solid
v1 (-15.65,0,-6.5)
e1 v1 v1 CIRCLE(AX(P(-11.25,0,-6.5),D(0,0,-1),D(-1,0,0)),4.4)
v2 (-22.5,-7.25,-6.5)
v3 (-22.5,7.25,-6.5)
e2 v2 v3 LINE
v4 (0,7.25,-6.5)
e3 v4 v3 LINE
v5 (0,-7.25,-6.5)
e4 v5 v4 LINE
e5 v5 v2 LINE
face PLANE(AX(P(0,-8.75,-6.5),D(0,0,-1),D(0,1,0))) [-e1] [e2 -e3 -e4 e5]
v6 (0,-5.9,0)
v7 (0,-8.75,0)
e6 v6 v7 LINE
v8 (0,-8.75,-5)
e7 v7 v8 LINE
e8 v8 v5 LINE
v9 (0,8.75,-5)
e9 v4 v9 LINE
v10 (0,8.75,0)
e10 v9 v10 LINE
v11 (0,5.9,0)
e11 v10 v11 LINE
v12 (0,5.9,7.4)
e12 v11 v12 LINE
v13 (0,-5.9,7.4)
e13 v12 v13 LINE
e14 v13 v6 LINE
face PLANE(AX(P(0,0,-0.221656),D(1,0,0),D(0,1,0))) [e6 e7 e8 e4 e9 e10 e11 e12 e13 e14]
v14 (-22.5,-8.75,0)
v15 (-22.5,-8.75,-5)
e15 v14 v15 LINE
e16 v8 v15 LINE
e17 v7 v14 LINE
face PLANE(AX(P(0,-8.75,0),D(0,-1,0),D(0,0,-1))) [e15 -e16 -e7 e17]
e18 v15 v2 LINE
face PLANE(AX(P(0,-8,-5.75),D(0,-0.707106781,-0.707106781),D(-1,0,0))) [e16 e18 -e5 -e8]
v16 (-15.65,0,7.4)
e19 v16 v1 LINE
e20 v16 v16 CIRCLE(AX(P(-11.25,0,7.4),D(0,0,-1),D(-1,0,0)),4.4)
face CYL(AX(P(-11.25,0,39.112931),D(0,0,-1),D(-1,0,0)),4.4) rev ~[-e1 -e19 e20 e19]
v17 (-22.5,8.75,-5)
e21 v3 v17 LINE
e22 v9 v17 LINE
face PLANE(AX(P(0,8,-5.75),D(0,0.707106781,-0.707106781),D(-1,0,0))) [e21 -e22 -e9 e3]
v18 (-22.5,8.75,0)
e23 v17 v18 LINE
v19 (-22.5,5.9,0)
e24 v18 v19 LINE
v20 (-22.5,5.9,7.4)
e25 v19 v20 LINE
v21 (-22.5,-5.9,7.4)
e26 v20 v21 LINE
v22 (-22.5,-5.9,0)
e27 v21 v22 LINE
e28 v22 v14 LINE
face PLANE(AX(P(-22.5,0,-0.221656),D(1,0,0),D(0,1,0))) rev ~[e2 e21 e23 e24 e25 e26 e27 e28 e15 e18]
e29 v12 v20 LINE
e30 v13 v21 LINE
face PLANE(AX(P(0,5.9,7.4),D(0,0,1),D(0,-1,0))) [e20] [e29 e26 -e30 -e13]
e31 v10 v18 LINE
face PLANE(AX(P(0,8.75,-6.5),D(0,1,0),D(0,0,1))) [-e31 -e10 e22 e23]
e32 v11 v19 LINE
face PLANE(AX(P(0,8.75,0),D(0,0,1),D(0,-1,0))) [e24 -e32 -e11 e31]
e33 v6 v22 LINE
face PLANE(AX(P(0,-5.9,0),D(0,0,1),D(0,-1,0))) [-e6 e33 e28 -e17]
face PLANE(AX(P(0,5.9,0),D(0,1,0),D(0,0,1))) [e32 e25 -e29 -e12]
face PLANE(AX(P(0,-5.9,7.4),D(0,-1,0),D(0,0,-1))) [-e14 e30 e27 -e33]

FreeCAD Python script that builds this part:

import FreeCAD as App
import Part
import Sketcher
from FreeCAD import Vector


def edges_at(feature, points):
    """Names of the edges that pass closest to the given points."""
    edges = feature.Shape.Edges
    near = lambda p: min(range(len(edges)), key=lambda i: edges[i].distToShape(Part.Vertex(*p))[0])
    return sorted({f"Edge{near(p) + 1}" for p in points})


def add_polygon(sketch, points):
    """Adds a closed chain of lines whose ends are joined by coincident constraints."""
    first, n = sketch.GeometryCount, len(points)
    for a, b in zip(points, points[1:] + points[:1]):
        sketch.addGeometry(Part.LineSegment(App.Vector(*a, 0), App.Vector(*b, 0)), False)
    for i in range(n):
        sketch.addConstraint(Sketcher.Constraint("Coincident", first + i, 2, first + (i + 1) % n, 1))

doc = App.newDocument("Part")
params = doc.addObject("Spreadsheet::Sheet", "Params")
for row, (alias, value) in enumerate([
    ("sketch1_width", "11.8 mm"),
    ("sketch1_width2", "17.5 mm"),
    ("sketch1_height", "7.4 mm"),
    ("sketch1_height2", "6.5 mm"),
    ("pad1_length", "22.5 mm"),
    ("sketch2_diameter", "8.8 mm"),
    ("hole_diameter", "8.8 mm"),
    ("chamfer_size", "1.5 mm"),
], start=1):
    params.set(f"A{row}", alias)
    params.set(f"B{row}", "=" + value)
    params.setAlias(f"B{row}", alias)

body = doc.addObject("PartDesign::Body", "Body")

# Sketch on YZ plane
sketch1 = body.newObject("Sketcher::SketchObject", "Sketch")
sketch1.AttachmentSupport = (doc.getObject("YZ_Plane"), [""])
sketch1.MapMode = "FlatFace"
add_polygon(sketch1, [(5.9, 7.4), (-5.9, 7.4), (-5.9, 0), (-8.8, 0), (-8.8, -6.5), (8.8, -6.5), (8.8, 0), (5.9, 0)])  # lines 0-7
sketch1.addConstraint(Sketcher.Constraint("Horizontal", 0))
sketch1.addConstraint(Sketcher.Constraint("Vertical", 1))
sketch1.addConstraint(Sketcher.Constraint("Horizontal", 2))
sketch1.addConstraint(Sketcher.Constraint("Vertical", 3))
sketch1.addConstraint(Sketcher.Constraint("Horizontal", 4))
sketch1.addConstraint(Sketcher.Constraint("Vertical", 5))
sketch1.addConstraint(Sketcher.Constraint("Horizontal", 6))
sketch1.addConstraint(Sketcher.Constraint("Vertical", 7))
sketch1.addConstraint(Sketcher.Constraint("Symmetric", 2, 2, 5, 2, -1, 1))
sketch1.addConstraint(Sketcher.Constraint("Symmetric", 1, 2, 6, 2, -2))
sketch1.addConstraint(Sketcher.Constraint("DistanceX", 0, 2, 0, 1, 11.8))
sketch1.addConstraint(Sketcher.Constraint("DistanceX", 4, 1, 4, 2, 17.5))
sketch1.addConstraint(Sketcher.Constraint("DistanceY", 1, 2, 1, 1, 7.4))
sketch1.addConstraint(Sketcher.Constraint("DistanceY", 3, 2, 3, 1, 6.5))
sketch1.setExpression("Constraints[18]", "Params.sketch1_width")
sketch1.setExpression("Constraints[19]", "Params.sketch1_width2")
sketch1.setExpression("Constraints[20]", "Params.sketch1_height")
sketch1.setExpression("Constraints[21]", "Params.sketch1_height2")
pad1 = body.newObject("PartDesign::Pad", "Pad")
pad1.Profile = sketch1
pad1.setExpression("Length", "Params.pad1_length")
pad1.Reversed = True

# Sketch on XY plane
sketch2 = body.newObject("Sketcher::SketchObject", "Sketch001")
sketch2.AttachmentSupport = (doc.getObject("XY_Plane"), [""])
sketch2.MapMode = "FlatFace"
sketch2.AttachmentOffset = App.Placement(Vector(0, 0, 7.4), App.Rotation())
sketch2.addGeometry(Part.Circle(Vector(-11.2, 0, 0), Vector(0, 0, 1), 4.4), False)
sketch2.addConstraint(Sketcher.Constraint("PointOnObject", 0, 3, -1))
sketch2.addConstraint(Sketcher.Constraint("Diameter", 0, 8.8))
sketch2.addConstraint(Sketcher.Constraint("DistanceX", 0, 3, -1, 1, 11.25))
sketch2.setExpression("Constraints[1]", "Params.sketch2_diameter")
doc.recompute()
hole = body.newObject("PartDesign::Hole", "Hole")
hole.Profile = sketch2
hole.ThreadType = "None"
hole.setExpression("Diameter", "Params.hole_diameter")
hole.DepthType = "ThroughAll"
doc.recompute()

chamfer = body.newObject("PartDesign::Chamfer", "Chamfer")
chamfer.Base = (hole, edges_at(hole, [(-11.25, -8.75, -6.5), (-11.25, 8.75, -6.5)]))
chamfer.setExpression("Size", "Params.chamfer_size")

doc.recompute()
